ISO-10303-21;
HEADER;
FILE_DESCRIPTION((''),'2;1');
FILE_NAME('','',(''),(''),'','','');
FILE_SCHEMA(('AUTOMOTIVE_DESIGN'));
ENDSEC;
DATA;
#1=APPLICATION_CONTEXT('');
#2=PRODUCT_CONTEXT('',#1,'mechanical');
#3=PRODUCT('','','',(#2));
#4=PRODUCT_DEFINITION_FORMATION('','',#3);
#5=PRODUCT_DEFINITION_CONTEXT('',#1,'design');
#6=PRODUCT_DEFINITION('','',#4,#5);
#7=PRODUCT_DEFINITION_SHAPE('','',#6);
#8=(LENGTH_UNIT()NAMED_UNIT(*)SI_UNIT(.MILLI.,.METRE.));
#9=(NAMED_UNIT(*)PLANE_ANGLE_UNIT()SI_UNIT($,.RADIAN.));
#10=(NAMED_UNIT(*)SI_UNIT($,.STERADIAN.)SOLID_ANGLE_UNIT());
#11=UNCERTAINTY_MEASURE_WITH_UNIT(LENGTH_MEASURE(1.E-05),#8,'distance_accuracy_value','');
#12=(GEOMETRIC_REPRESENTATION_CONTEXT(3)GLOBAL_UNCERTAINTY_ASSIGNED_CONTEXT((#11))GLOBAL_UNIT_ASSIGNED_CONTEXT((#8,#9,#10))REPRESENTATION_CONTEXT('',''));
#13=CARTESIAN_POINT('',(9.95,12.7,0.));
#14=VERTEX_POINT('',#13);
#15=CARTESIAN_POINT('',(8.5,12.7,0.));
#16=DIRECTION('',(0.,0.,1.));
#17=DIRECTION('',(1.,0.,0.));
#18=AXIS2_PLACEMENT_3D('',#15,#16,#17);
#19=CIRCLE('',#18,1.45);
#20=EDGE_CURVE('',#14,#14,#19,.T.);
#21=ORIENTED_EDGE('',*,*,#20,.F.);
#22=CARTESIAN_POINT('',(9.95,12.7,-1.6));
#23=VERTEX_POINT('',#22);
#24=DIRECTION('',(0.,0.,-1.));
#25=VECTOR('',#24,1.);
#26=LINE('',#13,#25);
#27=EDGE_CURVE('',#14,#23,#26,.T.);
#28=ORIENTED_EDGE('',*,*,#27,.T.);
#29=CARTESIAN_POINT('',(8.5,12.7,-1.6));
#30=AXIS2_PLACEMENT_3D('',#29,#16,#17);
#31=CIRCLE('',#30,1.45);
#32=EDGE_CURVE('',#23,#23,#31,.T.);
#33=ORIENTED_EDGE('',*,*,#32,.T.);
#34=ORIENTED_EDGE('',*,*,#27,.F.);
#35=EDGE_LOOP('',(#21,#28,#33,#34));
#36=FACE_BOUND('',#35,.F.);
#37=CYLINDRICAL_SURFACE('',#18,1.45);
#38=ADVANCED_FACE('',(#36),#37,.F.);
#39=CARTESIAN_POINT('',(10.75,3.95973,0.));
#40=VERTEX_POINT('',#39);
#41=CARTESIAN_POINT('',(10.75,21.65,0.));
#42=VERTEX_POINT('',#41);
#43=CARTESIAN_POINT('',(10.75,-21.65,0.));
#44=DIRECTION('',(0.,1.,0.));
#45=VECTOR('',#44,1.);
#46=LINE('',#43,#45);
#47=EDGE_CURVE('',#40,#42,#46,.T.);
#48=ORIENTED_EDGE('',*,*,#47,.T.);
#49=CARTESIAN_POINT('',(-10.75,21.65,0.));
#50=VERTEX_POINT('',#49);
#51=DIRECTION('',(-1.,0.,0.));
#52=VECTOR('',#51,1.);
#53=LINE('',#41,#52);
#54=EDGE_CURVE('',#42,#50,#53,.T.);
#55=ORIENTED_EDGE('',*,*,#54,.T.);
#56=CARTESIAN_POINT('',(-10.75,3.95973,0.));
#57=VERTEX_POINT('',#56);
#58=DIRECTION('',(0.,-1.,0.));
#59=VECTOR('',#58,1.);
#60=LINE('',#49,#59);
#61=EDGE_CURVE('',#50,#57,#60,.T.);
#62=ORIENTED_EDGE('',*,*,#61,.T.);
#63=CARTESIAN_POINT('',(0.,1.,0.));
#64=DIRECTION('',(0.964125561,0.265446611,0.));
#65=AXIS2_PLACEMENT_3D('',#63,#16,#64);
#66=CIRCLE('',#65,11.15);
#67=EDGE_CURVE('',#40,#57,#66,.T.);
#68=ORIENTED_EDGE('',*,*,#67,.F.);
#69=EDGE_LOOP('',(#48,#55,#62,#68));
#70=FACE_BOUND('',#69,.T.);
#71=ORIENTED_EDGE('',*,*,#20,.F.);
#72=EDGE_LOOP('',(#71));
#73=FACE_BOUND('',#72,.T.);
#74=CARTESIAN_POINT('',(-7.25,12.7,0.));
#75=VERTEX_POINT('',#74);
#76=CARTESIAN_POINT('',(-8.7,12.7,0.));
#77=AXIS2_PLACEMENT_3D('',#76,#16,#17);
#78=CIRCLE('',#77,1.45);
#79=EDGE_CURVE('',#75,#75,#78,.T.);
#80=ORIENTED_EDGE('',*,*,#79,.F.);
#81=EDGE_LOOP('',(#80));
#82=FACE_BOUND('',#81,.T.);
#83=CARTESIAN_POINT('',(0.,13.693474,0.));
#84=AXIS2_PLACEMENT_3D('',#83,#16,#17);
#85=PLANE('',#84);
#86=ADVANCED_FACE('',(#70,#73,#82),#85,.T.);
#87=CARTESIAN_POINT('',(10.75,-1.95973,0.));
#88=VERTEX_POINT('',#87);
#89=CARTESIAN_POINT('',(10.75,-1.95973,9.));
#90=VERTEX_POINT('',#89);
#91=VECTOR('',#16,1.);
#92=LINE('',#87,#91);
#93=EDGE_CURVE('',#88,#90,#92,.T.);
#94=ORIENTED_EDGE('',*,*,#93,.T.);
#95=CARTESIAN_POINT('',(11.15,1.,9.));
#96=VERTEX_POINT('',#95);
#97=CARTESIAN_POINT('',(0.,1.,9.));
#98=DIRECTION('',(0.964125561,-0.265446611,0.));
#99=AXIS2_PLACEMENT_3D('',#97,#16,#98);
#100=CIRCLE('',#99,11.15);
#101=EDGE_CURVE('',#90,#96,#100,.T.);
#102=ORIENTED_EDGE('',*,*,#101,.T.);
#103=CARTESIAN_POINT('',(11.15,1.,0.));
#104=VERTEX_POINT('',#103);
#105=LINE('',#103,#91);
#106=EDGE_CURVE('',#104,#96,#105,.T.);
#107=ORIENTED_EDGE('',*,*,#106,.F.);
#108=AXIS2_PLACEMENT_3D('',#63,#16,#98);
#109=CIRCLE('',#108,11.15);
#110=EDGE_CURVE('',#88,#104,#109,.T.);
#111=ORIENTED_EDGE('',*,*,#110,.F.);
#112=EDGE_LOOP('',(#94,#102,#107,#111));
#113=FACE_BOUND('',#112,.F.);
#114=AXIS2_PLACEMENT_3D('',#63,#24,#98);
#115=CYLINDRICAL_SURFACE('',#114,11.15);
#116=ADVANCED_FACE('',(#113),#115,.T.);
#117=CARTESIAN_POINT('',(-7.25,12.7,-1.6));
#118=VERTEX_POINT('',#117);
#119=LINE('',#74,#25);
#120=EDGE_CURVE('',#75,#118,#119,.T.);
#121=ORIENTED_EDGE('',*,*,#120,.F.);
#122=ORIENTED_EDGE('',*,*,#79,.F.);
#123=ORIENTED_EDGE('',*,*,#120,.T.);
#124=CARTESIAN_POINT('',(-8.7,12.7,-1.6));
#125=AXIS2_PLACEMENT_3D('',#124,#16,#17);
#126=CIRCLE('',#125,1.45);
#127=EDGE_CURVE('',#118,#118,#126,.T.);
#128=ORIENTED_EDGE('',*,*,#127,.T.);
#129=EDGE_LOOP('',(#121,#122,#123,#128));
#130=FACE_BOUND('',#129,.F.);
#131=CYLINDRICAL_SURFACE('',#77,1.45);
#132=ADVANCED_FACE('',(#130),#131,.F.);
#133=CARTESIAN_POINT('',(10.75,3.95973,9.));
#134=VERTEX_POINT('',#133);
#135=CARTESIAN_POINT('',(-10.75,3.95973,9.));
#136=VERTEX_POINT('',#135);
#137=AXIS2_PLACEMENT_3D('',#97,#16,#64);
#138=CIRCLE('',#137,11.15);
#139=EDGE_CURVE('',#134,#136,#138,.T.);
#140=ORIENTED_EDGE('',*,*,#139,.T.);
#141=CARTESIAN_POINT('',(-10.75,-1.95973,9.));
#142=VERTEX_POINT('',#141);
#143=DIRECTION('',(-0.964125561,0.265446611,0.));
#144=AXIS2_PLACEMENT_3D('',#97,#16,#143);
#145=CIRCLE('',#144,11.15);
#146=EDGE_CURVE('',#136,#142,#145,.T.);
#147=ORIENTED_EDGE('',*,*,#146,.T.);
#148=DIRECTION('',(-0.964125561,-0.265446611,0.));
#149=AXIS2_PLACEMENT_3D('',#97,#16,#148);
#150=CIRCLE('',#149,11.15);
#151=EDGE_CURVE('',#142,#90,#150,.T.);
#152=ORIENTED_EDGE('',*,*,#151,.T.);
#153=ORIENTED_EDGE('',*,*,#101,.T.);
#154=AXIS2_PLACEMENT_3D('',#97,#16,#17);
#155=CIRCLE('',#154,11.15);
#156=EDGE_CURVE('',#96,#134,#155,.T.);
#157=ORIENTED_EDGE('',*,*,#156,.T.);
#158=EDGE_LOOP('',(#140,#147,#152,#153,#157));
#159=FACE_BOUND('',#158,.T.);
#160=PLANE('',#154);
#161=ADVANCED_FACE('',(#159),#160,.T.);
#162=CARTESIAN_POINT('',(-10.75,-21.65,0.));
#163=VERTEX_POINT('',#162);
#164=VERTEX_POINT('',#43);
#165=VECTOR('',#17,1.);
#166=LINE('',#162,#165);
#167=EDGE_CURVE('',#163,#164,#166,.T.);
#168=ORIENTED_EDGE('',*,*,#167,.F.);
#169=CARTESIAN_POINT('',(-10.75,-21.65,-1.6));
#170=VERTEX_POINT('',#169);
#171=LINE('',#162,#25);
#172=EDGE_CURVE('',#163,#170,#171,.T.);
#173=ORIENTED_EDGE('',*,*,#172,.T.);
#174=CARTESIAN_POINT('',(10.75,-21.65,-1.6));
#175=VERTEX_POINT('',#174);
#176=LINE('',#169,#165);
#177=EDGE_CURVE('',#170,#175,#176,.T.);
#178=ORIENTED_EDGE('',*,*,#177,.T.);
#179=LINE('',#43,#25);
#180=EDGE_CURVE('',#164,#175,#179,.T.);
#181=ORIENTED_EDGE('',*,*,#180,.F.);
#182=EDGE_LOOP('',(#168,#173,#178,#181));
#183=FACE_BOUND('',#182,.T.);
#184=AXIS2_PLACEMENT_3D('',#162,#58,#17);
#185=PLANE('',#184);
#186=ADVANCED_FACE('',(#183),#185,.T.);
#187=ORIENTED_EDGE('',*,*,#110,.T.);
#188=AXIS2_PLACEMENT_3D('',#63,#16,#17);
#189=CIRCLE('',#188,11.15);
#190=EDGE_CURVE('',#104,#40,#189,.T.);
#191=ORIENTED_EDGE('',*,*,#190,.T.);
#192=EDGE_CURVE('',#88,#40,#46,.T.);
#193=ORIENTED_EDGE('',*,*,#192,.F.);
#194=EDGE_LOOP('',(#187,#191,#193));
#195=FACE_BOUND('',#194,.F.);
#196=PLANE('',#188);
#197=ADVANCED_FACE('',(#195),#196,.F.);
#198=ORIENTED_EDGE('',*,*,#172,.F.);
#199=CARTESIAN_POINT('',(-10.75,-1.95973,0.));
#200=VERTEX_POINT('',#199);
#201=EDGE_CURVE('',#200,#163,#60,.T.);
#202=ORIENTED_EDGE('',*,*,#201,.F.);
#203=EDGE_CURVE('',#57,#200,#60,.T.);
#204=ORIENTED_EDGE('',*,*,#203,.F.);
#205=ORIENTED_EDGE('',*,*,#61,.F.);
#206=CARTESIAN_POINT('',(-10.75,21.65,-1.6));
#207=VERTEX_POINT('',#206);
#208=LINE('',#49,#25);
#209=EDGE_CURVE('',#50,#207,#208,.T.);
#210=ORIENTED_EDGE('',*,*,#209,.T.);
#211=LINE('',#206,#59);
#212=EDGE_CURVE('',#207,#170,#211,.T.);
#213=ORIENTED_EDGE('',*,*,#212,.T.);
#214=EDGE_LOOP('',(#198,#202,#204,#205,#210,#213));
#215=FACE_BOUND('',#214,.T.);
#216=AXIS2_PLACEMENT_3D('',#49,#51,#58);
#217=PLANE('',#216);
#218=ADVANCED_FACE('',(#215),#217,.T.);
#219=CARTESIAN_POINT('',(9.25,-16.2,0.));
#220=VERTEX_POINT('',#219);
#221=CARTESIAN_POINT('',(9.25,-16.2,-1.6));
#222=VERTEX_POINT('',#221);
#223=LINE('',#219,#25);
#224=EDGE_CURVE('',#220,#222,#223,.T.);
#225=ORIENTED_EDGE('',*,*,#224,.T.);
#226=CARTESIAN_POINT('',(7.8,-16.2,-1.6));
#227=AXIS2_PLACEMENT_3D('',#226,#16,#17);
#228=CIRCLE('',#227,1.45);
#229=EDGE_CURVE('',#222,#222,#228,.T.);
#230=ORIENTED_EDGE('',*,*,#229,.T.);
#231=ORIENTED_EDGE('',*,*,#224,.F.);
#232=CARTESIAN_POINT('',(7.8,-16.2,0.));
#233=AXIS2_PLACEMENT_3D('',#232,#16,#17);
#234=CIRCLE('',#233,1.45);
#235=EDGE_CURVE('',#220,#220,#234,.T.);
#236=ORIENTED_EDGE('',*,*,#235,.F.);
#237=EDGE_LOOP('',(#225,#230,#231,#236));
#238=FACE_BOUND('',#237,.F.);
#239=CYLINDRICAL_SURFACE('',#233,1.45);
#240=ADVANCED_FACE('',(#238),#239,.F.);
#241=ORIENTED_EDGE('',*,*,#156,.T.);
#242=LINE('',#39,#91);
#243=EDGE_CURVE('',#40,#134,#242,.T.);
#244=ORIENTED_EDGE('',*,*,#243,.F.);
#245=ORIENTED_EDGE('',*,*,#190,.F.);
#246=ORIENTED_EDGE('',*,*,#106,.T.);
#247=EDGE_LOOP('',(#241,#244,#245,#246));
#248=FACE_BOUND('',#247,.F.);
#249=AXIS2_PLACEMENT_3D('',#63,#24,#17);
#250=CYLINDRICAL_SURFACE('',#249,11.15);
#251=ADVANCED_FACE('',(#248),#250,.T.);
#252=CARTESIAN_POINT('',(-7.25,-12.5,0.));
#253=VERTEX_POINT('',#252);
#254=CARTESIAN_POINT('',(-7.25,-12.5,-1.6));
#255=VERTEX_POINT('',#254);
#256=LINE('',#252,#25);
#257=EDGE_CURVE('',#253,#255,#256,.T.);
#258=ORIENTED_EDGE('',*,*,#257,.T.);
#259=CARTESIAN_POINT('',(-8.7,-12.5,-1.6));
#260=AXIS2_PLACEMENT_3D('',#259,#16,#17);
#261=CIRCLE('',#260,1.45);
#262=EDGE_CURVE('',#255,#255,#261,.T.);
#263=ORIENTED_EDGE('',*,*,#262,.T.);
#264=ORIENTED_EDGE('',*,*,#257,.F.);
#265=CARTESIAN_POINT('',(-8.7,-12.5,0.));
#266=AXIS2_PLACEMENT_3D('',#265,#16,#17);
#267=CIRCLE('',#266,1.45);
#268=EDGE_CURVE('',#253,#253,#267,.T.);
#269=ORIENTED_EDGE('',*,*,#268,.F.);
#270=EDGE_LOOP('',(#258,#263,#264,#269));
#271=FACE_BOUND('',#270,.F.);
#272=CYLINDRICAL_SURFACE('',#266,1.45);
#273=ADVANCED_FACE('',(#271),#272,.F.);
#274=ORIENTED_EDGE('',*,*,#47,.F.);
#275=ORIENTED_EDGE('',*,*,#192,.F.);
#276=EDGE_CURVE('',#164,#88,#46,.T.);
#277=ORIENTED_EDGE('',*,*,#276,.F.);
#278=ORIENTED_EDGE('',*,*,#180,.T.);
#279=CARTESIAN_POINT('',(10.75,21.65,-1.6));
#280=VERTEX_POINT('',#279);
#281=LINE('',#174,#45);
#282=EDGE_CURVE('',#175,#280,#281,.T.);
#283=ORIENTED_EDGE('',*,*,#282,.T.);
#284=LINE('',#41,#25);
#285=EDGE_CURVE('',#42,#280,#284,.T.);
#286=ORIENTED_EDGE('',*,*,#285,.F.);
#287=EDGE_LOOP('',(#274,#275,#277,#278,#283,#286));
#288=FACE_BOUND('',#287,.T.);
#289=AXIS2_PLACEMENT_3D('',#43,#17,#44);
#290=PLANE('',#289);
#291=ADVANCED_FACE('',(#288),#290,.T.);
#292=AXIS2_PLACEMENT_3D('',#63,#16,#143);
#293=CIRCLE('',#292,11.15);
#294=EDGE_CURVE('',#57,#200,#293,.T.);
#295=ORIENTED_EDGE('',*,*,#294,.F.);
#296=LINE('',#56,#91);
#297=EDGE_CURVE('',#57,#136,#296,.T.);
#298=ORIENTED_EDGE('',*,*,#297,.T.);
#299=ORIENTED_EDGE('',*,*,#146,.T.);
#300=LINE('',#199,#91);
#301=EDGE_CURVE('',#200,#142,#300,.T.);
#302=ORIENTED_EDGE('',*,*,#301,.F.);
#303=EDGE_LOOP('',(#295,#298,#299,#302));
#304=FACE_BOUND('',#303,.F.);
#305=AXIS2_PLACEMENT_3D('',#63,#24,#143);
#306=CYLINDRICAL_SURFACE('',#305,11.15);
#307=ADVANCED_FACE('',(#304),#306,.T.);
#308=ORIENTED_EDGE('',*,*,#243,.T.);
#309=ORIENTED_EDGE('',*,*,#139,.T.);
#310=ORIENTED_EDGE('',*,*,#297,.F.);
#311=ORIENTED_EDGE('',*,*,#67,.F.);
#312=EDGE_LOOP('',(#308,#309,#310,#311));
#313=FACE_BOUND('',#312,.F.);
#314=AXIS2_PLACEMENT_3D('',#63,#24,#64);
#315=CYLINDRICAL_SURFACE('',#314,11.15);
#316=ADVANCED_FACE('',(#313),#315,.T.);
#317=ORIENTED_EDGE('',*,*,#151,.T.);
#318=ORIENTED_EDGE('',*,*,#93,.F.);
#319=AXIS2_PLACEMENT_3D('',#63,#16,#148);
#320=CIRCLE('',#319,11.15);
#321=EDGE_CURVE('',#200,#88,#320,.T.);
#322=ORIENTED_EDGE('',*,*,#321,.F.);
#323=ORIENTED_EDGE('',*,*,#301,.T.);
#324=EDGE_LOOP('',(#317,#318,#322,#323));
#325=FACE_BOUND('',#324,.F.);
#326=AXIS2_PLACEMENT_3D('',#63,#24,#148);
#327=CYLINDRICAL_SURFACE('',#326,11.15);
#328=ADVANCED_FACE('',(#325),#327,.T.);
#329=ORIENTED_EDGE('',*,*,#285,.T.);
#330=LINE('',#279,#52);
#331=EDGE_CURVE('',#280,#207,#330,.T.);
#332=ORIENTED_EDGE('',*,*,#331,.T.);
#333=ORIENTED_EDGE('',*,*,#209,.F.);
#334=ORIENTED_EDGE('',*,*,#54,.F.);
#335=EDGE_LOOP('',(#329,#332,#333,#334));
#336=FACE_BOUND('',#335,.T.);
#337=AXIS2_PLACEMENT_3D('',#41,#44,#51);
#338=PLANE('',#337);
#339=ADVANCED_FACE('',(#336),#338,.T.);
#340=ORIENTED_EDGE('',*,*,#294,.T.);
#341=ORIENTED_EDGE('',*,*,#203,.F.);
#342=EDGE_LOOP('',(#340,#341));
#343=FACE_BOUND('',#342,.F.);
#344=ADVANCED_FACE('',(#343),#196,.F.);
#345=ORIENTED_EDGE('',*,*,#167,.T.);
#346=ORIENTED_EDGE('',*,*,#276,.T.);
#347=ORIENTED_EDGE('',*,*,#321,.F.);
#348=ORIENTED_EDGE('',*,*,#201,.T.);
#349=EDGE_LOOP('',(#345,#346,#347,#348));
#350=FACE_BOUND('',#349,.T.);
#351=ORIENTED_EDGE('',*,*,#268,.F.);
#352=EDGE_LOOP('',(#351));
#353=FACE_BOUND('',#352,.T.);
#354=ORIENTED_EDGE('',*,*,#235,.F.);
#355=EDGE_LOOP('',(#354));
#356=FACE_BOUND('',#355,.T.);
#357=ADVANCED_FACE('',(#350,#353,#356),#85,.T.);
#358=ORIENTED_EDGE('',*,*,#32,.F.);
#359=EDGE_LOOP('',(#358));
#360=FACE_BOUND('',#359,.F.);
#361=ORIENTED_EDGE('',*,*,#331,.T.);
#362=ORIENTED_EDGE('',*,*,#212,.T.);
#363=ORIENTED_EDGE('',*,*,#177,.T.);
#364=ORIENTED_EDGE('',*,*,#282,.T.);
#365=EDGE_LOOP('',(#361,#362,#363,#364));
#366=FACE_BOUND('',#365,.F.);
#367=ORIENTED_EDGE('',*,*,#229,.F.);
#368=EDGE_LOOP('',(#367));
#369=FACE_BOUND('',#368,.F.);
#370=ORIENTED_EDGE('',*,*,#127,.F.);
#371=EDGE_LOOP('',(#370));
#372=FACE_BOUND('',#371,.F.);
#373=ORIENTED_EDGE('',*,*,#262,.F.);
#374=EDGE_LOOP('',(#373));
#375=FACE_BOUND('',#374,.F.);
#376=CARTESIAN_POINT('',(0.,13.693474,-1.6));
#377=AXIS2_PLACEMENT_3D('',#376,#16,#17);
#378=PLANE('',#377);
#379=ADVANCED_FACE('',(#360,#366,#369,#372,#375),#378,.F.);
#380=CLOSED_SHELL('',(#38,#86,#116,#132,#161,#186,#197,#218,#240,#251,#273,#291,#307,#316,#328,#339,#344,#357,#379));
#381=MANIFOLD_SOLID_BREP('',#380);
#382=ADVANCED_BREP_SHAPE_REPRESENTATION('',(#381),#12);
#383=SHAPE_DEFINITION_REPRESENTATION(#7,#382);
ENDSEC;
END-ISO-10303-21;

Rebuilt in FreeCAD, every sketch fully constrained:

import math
import FreeCAD as App
import Part
import Sketcher

V = App.Vector


def add_polygon(sketch, points):
    """Adds a closed chain of lines whose ends are joined by coincident constraints."""
    first, n = sketch.GeometryCount, len(points)
    for a, b in zip(points, points[1:] + points[:1]):
        sketch.addGeometry(Part.LineSegment(App.Vector(*a, 0), App.Vector(*b, 0)), False)
    for i in range(n):
        sketch.addConstraint(Sketcher.Constraint("Coincident", first + i, 2, first + (i + 1) % n, 1))

doc = App.newDocument("Part")
body = doc.addObject("PartDesign::Body", "Body")

# Sketch on XY plane
sketch1 = body.newObject("Sketcher::SketchObject", "Sketch")
sketch1.AttachmentSupport = (doc.getObject("XY_Plane"), [""])
sketch1.MapMode = "FlatFace"
add_polygon(sketch1, [(-10.8, 21.6), (-10.8, -21.6), (10.8, -21.6), (10.8, 21.6)])  # lines 0-3
sketch1.addGeometry(Part.Circle(V(-8.7, -12.5, 0), V(0, 0, 1), 1.4), False)  # 4
sketch1.addGeometry(Part.Circle(V(7.8, -16.2, 0), V(0, 0, 1), 1.4), False)  # 5
sketch1.addGeometry(Part.Circle(V(-8.7, 12.7, 0), V(0, 0, 1), 1.4), False)  # 6
sketch1.addGeometry(Part.Circle(V(8.5, 12.7, 0), V(0, 0, 1), 1.4), False)  # 7
sketch1.addConstraint([
    Sketcher.Constraint("Vertical", 0),
    Sketcher.Constraint("Horizontal", 1),
    Sketcher.Constraint("Vertical", 2),
    Sketcher.Constraint("Horizontal", 3),
    Sketcher.Constraint("Equal", 4, 5),
    Sketcher.Constraint("Equal", 5, 6),
    Sketcher.Constraint("Equal", 6, 7),
    Sketcher.Constraint("Symmetric", 0, 2, 2, 2, -1, 1),
    Sketcher.Constraint("Horizontal", 6, 3, 7, 3),
    Sketcher.Constraint("Vertical", 4, 3, 6, 3),
    Sketcher.Constraint("Diameter", 4, 2.9),
    Sketcher.Constraint("DistanceX", 1, 1, 1, 2, 21.5),
    Sketcher.Constraint("DistanceY", 0, 2, 0, 1, 43.3),
    Sketcher.Constraint("DistanceX", 4, 3, -1, 1, 8.7),
    Sketcher.Constraint("DistanceY", 4, 3, -1, 1, 12.5),
    Sketcher.Constraint("DistanceX", -1, 1, 5, 3, 7.8),
    Sketcher.Constraint("DistanceY", 5, 3, -1, 1, 16.2),
    Sketcher.Constraint("DistanceY", -1, 1, 6, 3, 12.7),
    Sketcher.Constraint("DistanceX", -1, 1, 7, 3, 8.5),
])
pad1 = body.newObject("PartDesign::Pad", "Pad")
pad1.Profile = sketch1
pad1.Length = 1.6
pad1.Reversed = True

# Sketch on XY plane
sketch2 = body.newObject("Sketcher::SketchObject", "Sketch001")
sketch2.AttachmentSupport = (doc.getObject("XY_Plane"), [""])
sketch2.MapMode = "FlatFace"
sketch2.addGeometry([
    Part.ArcOfCircle(Part.Circle(V(0, 1, 0), V(0, 0, 1), 11.2), math.radians(-165), math.radians(-15)),  # 0
    Part.ArcOfCircle(Part.Circle(V(0, 1, 0), V(0, 0, 1), 11.2), math.radians(-15.39), math.radians(0)),  # 1
    Part.ArcOfCircle(Part.Circle(V(0, 1, 0), V(0, 0, 1), 11.2), math.radians(0), math.radians(15.39)),  # 2
    Part.ArcOfCircle(Part.Circle(V(0, 1, 0), V(0, 0, 1), 11.2), math.radians(15), math.radians(165)),  # 3
    Part.ArcOfCircle(Part.Circle(V(0, 1, 0), V(0, 0, 1), 11.2), math.radians(165), math.radians(195)),  # 4
], False)
sketch2.addConstraint([
    Sketcher.Constraint("Tangent", 0, 2, 1, 1),
    Sketcher.Constraint("Tangent", 1, 2, 2, 1),
    Sketcher.Constraint("Tangent", 2, 2, 3, 1),
    Sketcher.Constraint("Tangent", 3, 2, 4, 1),
    Sketcher.Constraint("Tangent", 4, 2, 0, 1),
    Sketcher.Constraint("Coincident", 2, 3, 0, 3),
    Sketcher.Constraint("Symmetric", 2, 2, 3, 2, -2),
    Sketcher.Constraint("Horizontal", 4, 3, 1, 2),
    Sketcher.Constraint("Horizontal", 0, 2, 4, 2),
    Sketcher.Constraint("Vertical", 0, 2, 2, 2),
    Sketcher.Constraint("Radius", 0, 11.15),
    Sketcher.Constraint("DistanceY", -1, 1, 0, 3, 1.0),
    Sketcher.Constraint("DistanceX", 0, 2, 1, 2, 0.4),
])
pad2 = body.newObject("PartDesign::Pad", "Pad001")
pad2.Profile = sketch2
pad2.Length = 9

doc.recompute()
